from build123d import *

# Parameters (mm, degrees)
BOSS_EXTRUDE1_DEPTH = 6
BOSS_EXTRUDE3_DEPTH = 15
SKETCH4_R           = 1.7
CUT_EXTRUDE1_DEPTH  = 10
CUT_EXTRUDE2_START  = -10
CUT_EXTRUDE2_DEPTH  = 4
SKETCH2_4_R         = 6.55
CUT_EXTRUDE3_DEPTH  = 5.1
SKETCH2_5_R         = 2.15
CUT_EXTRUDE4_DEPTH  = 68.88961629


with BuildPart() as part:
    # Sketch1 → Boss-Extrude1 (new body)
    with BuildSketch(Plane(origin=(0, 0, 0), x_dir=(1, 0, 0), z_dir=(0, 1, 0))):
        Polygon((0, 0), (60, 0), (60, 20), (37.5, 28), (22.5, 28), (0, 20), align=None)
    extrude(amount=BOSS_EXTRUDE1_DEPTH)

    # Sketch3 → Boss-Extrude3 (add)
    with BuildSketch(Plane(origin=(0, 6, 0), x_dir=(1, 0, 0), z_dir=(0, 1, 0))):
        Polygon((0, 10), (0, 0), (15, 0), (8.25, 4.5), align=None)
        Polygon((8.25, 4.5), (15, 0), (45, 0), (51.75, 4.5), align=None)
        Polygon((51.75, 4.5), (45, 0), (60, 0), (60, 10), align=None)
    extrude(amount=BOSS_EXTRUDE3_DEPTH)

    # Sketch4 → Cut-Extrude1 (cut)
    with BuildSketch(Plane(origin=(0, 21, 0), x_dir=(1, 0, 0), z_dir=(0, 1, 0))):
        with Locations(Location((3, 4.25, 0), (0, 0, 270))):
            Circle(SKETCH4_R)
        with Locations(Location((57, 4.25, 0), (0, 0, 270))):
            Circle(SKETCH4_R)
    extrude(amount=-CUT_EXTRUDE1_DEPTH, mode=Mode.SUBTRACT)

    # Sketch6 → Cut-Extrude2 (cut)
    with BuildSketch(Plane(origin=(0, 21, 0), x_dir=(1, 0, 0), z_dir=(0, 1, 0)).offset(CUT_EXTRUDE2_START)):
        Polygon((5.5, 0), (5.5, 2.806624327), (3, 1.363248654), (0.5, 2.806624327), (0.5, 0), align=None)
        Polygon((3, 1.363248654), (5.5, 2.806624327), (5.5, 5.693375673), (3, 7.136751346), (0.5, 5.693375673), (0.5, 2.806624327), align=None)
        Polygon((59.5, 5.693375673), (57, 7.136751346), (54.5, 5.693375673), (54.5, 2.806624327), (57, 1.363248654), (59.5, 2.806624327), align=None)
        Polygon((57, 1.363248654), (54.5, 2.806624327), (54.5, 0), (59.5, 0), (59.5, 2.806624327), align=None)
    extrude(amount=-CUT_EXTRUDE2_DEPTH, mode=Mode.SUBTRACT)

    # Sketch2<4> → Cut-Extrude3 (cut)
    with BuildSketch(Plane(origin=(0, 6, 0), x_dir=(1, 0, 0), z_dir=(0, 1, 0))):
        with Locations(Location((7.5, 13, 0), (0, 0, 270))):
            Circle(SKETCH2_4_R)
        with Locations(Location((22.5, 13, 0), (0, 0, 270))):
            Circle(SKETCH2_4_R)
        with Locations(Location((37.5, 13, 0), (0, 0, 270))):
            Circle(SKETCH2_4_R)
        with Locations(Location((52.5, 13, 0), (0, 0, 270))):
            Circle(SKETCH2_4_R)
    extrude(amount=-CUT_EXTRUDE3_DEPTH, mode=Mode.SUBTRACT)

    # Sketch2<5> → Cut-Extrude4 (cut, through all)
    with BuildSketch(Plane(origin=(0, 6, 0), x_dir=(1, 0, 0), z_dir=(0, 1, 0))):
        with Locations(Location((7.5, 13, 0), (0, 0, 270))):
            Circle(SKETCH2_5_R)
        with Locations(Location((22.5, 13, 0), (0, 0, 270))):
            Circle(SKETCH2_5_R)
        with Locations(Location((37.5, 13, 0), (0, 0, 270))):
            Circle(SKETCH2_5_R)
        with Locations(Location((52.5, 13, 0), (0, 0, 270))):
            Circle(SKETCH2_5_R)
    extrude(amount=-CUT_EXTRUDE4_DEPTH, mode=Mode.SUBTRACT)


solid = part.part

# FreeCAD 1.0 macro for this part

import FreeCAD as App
import Part
import Sketcher
from FreeCAD import Vector
Q = App.Units.Quantity

doc = App.newDocument("Part")
body = doc.addObject("PartDesign::Body", "Body")

sketch1 = doc.addObject("Sketcher::SketchObject", "Sketch")
body.addObject(sketch1)
sketch1.AttachmentSupport = (doc.XZ_Plane, [""])
sketch1.MapMode = "FlatFace"
sketch1.addGeometry([
    Part.LineSegment(Vector(0, 0, 0), Vector(60, 0, 0)),
    Part.LineSegment(Vector(60, 0, 0), Vector(60, -20, 0)),
    Part.LineSegment(Vector(60, -20, 0), Vector(38, -28, 0)),
    Part.LineSegment(Vector(38, -28, 0), Vector(22, -28, 0)),
    Part.LineSegment(Vector(22, -28, 0), Vector(0, -20, 0)),
    Part.LineSegment(Vector(0, -20, 0), Vector(0, 0, 0)),
], False)
sketch1.addConstraint([
    Sketcher.Constraint("Coincident", 0, 2, 1, 1),
    Sketcher.Constraint("Coincident", 1, 2, 2, 1),
    Sketcher.Constraint("Coincident", 2, 2, 3, 1),
    Sketcher.Constraint("Coincident", 3, 2, 4, 1),
    Sketcher.Constraint("Coincident", 4, 2, 5, 1),
    Sketcher.Constraint("Coincident", 5, 2, 0, 1),
    Sketcher.Constraint("Horizontal", 0),
    Sketcher.Constraint("Vertical", 1),
    Sketcher.Constraint("Horizontal", 3),
    Sketcher.Constraint("Vertical", 5),
    Sketcher.Constraint("Coincident", 5, 2, -1, 1),
    Sketcher.Constraint("Horizontal", 1, 2, 4, 2),
    Sketcher.Constraint("Equal", 2, 4),
    Sketcher.Constraint("DistanceX", 0, 1, 0, 2, Q("60 mm")),
    Sketcher.Constraint("DistanceX", 3, 2, 3, 1, Q("15 mm")),
    Sketcher.Constraint("DistanceY", 1, 2, 1, 1, Q("20 mm")),
    Sketcher.Constraint("DistanceY", 2, 2, -1, 1, Q("28 mm")),
])
pad1 = doc.addObject("PartDesign::Pad", "Pad")
body.addObject(pad1)
pad1.Profile = sketch1
pad1.Length = 6
pad1.Reversed = True

sketch2 = doc.addObject("Sketcher::SketchObject", "Sketch001")
body.addObject(sketch2)
sketch2.AttachmentSupport = (doc.XZ_Plane, [""])
sketch2.MapMode = "FlatFace"
sketch2.AttachmentOffset = App.Placement(Vector(0, 0, -6), App.Rotation())
sketch2.addGeometry([
    Part.LineSegment(Vector(0, -10, 0), Vector(0, 0, 0)),
    Part.LineSegment(Vector(0, 0, 0), Vector(60, 0, 0)),
    Part.LineSegment(Vector(60, 0, 0), Vector(60, -10, 0)),
    Part.LineSegment(Vector(60, -10, 0), Vector(52, -4, 0)),
    Part.LineSegment(Vector(52, -4, 0), Vector(8, -4, 0)),
    Part.LineSegment(Vector(8, -4, 0), Vector(0, -10, 0)),
], False)
sketch2.addConstraint([
    Sketcher.Constraint("Coincident", 0, 2, 1, 1),
    Sketcher.Constraint("Coincident", 1, 2, 2, 1),
    Sketcher.Constraint("Coincident", 2, 2, 3, 1),
    Sketcher.Constraint("Coincident", 3, 2, 4, 1),
    Sketcher.Constraint("Coincident", 4, 2, 5, 1),
    Sketcher.Constraint("Coincident", 5, 2, 0, 1),
    Sketcher.Constraint("Vertical", 0),
    Sketcher.Constraint("Horizontal", 1),
    Sketcher.Constraint("Vertical", 2),
    Sketcher.Constraint("Horizontal", 4),
    Sketcher.Constraint("Coincident", 0, 2, -1, 1),
    Sketcher.Constraint("Horizontal", 2, 2, 5, 2),
    Sketcher.Constraint("Equal", 3, 5),
    Sketcher.Constraint("DistanceX", 1, 1, 1, 2, Q("60 mm")),
    Sketcher.Constraint("DistanceY", 0, 1, 0, 2, Q("10 mm")),
    Sketcher.Constraint("DistanceX", 4, 2, 4, 1, Q("43.5 mm")),
    Sketcher.Constraint("DistanceY", 3, 2, -1, 1, Q("4.5 mm")),
])
pad2 = doc.addObject("PartDesign::Pad", "Pad001")
body.addObject(pad2)
pad2.Profile = sketch2
pad2.Length = 15
pad2.Reversed = True

sketch3 = doc.addObject("Sketcher::SketchObject", "Sketch002")
body.addObject(sketch3)
sketch3.AttachmentSupport = (doc.XZ_Plane, [""])
sketch3.MapMode = "FlatFace"
sketch3.AttachmentOffset = App.Placement(Vector(0, 0, -21), App.Rotation())
sketch3.addGeometry([
    Part.Circle(Vector(3, -4.2, 0), Vector(0, 0, 1), 1.7),
    Part.Circle(Vector(57, -4.2, 0), Vector(0, 0, 1), 1.7),
], False)
sketch3.addConstraint([
    Sketcher.Constraint("Equal", 0, 1),
    Sketcher.Constraint("Horizontal", 0, 3, 1, 3),
    Sketcher.Constraint("Diameter", 0, Q("3.4 mm")),
    Sketcher.Constraint("DistanceX", -1, 1, 0, 3, Q("3 mm")),
    Sketcher.Constraint("DistanceX", -1, 1, 1, 3, Q("57 mm")),
    Sketcher.Constraint("DistanceY", 0, 3, -1, 1, Q("4.25 mm")),
])
pocket1 = doc.addObject("PartDesign::Pocket", "Pocket")
body.addObject(pocket1)
pocket1.Profile = sketch3
pocket1.Length = 10
pocket1.Reversed = True

sketch4 = doc.addObject("Sketcher::SketchObject", "Sketch003")
body.addObject(sketch4)
sketch4.AttachmentSupport = (doc.XZ_Plane, [""])
sketch4.MapMode = "FlatFace"
sketch4.AttachmentOffset = App.Placement(Vector(0, 0, -11), App.Rotation())
sketch4.addGeometry([
    Part.LineSegment(Vector(5.5, 0, 0), Vector(5.5, -5.7, 0)),
    Part.LineSegment(Vector(5.5, -5.7, 0), Vector(3, -7.1, 0)),
    Part.LineSegment(Vector(3, -7.1, 0), Vector(0.5, -5.7, 0)),
    Part.LineSegment(Vector(0.5, -5.7, 0), Vector(0.5, 0, 0)),
    Part.LineSegment(Vector(0.5, 0, 0), Vector(5.5, 0, 0)),
    Part.LineSegment(Vector(59.5, -5.7, 0), Vector(57, -7.1, 0)),
    Part.LineSegment(Vector(57, -7.1, 0), Vector(54.5, -5.7, 0)),
    Part.LineSegment(Vector(54.5, -5.7, 0), Vector(54.5, 0, 0)),
    Part.LineSegment(Vector(54.5, 0, 0), Vector(59.5, 0, 0)),
    Part.LineSegment(Vector(59.5, 0, 0), Vector(59.5, -5.7, 0)),
], False)
sketch4.addConstraint([
    Sketcher.Constraint("Coincident", 0, 2, 1, 1),
    Sketcher.Constraint("Coincident", 1, 2, 2, 1),
    Sketcher.Constraint("Coincident", 2, 2, 3, 1),
    Sketcher.Constraint("Coincident", 3, 2, 4, 1),
    Sketcher.Constraint("Coincident", 4, 2, 0, 1),
    Sketcher.Constraint("Coincident", 5, 2, 6, 1),
    Sketcher.Constraint("Coincident", 6, 2, 7, 1),
    Sketcher.Constraint("Coincident", 7, 2, 8, 1),
    Sketcher.Constraint("Coincident", 8, 2, 9, 1),
    Sketcher.Constraint("Coincident", 9, 2, 5, 1),
    Sketcher.Constraint("Vertical", 0),
    Sketcher.Constraint("Vertical", 3),
    Sketcher.Constraint("Horizontal", 4),
    Sketcher.Constraint("Vertical", 7),
    Sketcher.Constraint("Horizontal", 8),
    Sketcher.Constraint("Vertical", 9),
    Sketcher.Constraint("PointOnObject", 3, 2, -1),
    Sketcher.Constraint("PointOnObject", 7, 2, -1),
    Sketcher.Constraint("Parallel", 1, 5),
    Sketcher.Constraint("Parallel", 2, 6),
    Sketcher.Constraint("Horizontal", 0, 2, 2, 2),
    Sketcher.Constraint("Horizontal", 1, 2, 5, 2),
    Sketcher.Constraint("Horizontal", 2, 2, 6, 2),
    Sketcher.Constraint("Horizontal", 6, 2, 9, 2),
    Sketcher.Constraint("Equal", 1, 2),
    Sketcher.Constraint("DistanceX", 4, 1, 4, 2, Q("5 mm")),
    Sketcher.Constraint("Angle", 1, Q("-150 deg")),
    Sketcher.Constraint("DistanceX", -1, 1, 1, 2, Q("3 mm")),
    Sketcher.Constraint("DistanceX", -1, 1, 5, 2, Q("57 mm")),
    Sketcher.Constraint("DistanceY", 0, 2, 0, 1, Q("5.693376 mm")),
])
pocket2 = doc.addObject("PartDesign::Pocket", "Pocket001")
body.addObject(pocket2)
pocket2.Profile = sketch4
pocket2.Length = 4
pocket2.Reversed = True

sketch5 = doc.addObject("Sketcher::SketchObject", "Sketch004")
body.addObject(sketch5)
sketch5.AttachmentSupport = (doc.XZ_Plane, [""])
sketch5.MapMode = "FlatFace"
sketch5.AttachmentOffset = App.Placement(Vector(0, 0, -6), App.Rotation())
sketch5.addGeometry([
    Part.Circle(Vector(8, -13, 0), Vector(0, 0, 1), 7),
    Part.Circle(Vector(22, -13, 0), Vector(0, 0, 1), 7),
    Part.Circle(Vector(38, -13, 0), Vector(0, 0, 1), 7),
    Part.Circle(Vector(52, -13, 0), Vector(0, 0, 1), 7),
], False)
sketch5.addConstraint([
    Sketcher.Constraint("Equal", 0, 1),
    Sketcher.Constraint("Equal", 1, 2),
    Sketcher.Constraint("Equal", 2, 3),
    Sketcher.Constraint("Horizontal", 0, 3, 1, 3),
    Sketcher.Constraint("Horizontal", 1, 3, 2, 3),
    Sketcher.Constraint("Horizontal", 2, 3, 3, 3),
    Sketcher.Constraint("Diameter", 0, Q("13.1 mm")),
    Sketcher.Constraint("DistanceY", 0, 3, -1, 1, Q("13 mm")),
    Sketcher.Constraint("DistanceX", 0, 3, 1, 3, Q("15 mm")),
    Sketcher.Constraint("DistanceX", 1, 3, 2, 3, Q("15 mm")),
    Sketcher.Constraint("DistanceX", 2, 3, 3, 3, Q("15 mm")),
    Sketcher.Constraint("DistanceX", -1, 1, 0, 3, Q("7.5 mm")),
])
pocket3 = doc.addObject("PartDesign::Pocket", "Pocket002")
body.addObject(pocket3)
pocket3.Profile = sketch5
pocket3.Length = 5.1
pocket3.Reversed = True

sketch6 = doc.addObject("Sketcher::SketchObject", "Sketch005")
body.addObject(sketch6)
sketch6.AttachmentSupport = (doc.XZ_Plane, [""])
sketch6.MapMode = "FlatFace"
sketch6.AttachmentOffset = App.Placement(Vector(0, 0, -6), App.Rotation())
sketch6.addGeometry([
    Part.Circle(Vector(7.5, -13, 0), Vector(0, 0, 1), 2.1),
    Part.Circle(Vector(22.5, -13, 0), Vector(0, 0, 1), 2.1),
    Part.Circle(Vector(37.5, -13, 0), Vector(0, 0, 1), 2.1),
    Part.Circle(Vector(52.5, -13, 0), Vector(0, 0, 1), 2.1),
], False)
sketch6.addConstraint([
    Sketcher.Constraint("Equal", 0, 1),
    Sketcher.Constraint("Equal", 1, 2),
    Sketcher.Constraint("Equal", 2, 3),
    Sketcher.Constraint("Horizontal", 0, 3, 1, 3),
    Sketcher.Constraint("Horizontal", 1, 3, 2, 3),
    Sketcher.Constraint("Horizontal", 2, 3, 3, 3),
    Sketcher.Constraint("Diameter", 0, Q("4.3 mm")),
    Sketcher.Constraint("DistanceY", 0, 3, -1, 1, Q("13 mm")),
    Sketcher.Constraint("DistanceX", 0, 3, 1, 3, Q("15 mm")),
    Sketcher.Constraint("DistanceX", 1, 3, 2, 3, Q("15 mm")),
    Sketcher.Constraint("DistanceX", 2, 3, 3, 3, Q("15 mm")),
    Sketcher.Constraint("DistanceX", -1, 1, 0, 3, Q("7.5 mm")),
])
pocket4 = doc.addObject("PartDesign::Pocket", "Pocket003")
body.addObject(pocket4)
pocket4.Profile = sketch6
pocket4.Type = "ThroughAll"
pocket4.Reversed = True

doc.recompute()
